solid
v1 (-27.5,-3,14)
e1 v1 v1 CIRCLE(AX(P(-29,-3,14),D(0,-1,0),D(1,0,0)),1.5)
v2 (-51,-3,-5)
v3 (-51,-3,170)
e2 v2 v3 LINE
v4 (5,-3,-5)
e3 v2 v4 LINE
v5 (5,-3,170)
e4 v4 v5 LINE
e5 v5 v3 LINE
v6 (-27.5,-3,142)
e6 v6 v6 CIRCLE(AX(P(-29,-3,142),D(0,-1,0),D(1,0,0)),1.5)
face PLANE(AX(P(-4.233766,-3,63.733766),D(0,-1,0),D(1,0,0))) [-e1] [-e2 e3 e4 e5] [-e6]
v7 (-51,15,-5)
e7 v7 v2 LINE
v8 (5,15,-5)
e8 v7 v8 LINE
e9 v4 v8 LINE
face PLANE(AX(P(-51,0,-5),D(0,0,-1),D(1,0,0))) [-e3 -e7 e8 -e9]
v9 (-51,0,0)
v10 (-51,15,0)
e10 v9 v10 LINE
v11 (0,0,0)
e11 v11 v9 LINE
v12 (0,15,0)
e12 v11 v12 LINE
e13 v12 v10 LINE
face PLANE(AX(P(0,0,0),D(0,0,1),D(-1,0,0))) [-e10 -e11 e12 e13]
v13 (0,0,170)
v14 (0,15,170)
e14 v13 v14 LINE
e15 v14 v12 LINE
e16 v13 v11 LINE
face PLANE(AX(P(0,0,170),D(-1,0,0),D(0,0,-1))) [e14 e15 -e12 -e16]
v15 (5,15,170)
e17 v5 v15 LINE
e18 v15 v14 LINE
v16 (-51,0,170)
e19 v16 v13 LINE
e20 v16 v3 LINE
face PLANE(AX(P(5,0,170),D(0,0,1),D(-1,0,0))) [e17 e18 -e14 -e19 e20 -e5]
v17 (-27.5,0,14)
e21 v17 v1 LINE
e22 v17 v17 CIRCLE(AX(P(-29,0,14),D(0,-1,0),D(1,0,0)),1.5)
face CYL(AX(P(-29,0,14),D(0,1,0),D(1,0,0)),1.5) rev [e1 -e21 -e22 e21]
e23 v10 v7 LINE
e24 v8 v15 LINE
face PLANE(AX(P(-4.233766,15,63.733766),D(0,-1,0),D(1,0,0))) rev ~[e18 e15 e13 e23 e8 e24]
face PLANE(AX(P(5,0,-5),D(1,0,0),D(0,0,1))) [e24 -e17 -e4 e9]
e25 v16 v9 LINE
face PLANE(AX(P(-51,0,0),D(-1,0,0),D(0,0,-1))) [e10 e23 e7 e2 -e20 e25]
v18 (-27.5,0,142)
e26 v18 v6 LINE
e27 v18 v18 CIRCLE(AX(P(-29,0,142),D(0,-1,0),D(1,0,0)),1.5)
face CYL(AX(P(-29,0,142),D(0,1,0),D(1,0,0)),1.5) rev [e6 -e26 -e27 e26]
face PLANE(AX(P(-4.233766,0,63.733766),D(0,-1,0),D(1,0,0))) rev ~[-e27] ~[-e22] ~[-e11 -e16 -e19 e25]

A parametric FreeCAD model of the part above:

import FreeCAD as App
import Part
import Sketcher
Q = App.Units.Quantity


def add_polygon(sketch, points):
    """Adds a closed chain of lines whose ends are joined by coincident constraints."""
    first, n = sketch.GeometryCount, len(points)
    for a, b in zip(points, points[1:] + points[:1]):
        sketch.addGeometry(Part.LineSegment(App.Vector(*a, 0), App.Vector(*b, 0)), False)
    for i in range(n):
        sketch.addConstraint(Sketcher.Constraint("Coincident", first + i, 2, first + (i + 1) % n, 1))

doc = App.newDocument("Part")
body = doc.addObject("PartDesign::Body", "Body")

sketch1 = body.newObject("Sketcher::SketchObject", "Sketch")
sketch1.AttachmentSupport = (doc.getObject("XZ_Plane"), [""])
sketch1.MapMode = "FlatFace"
add_polygon(sketch1, [(-51, 170), (-51, 0), (0, 0), (0, 170)])
sketch1.addGeometry(Part.Circle(App.Vector(-29, 14, 0), App.Vector(0, 0, 1), 1.5), False)
sketch1.addGeometry(Part.Circle(App.Vector(-29, 142, 0), App.Vector(0, 0, 1), 1.5), False)
sketch1.addConstraint(Sketcher.Constraint("Vertical", 0))
sketch1.addConstraint(Sketcher.Constraint("Horizontal", 1))
sketch1.addConstraint(Sketcher.Constraint("Vertical", 2))
sketch1.addConstraint(Sketcher.Constraint("Horizontal", 3))
sketch1.addConstraint(Sketcher.Constraint("Coincident", 1, 2, -1, 1))
sketch1.addConstraint(Sketcher.Constraint("Equal", 4, 5))
sketch1.addConstraint(Sketcher.Constraint("Vertical", 4, 3, 5, 3))
sketch1.addConstraint(Sketcher.Constraint("Diameter", 4, Q("3 mm")))
sketch1.addConstraint(Sketcher.Constraint("DistanceX", 1, 1, 1, 2, Q("51 mm")))
sketch1.addConstraint(Sketcher.Constraint("DistanceY", 0, 2, 0, 1, Q("170 mm")))
sketch1.addConstraint(Sketcher.Constraint("DistanceX", 4, 3, -1, 1, Q("29 mm")))
sketch1.addConstraint(Sketcher.Constraint("DistanceY", -1, 1, 4, 3, Q("14 mm")))
sketch1.addConstraint(Sketcher.Constraint("DistanceY", -1, 1, 5, 3, Q("142 mm")))
pad1 = body.newObject("PartDesign::Pad", "Pad")
pad1.Profile = sketch1
pad1.Length = 3

sketch2 = body.newObject("Sketcher::SketchObject", "Sketch001")
sketch2.AttachmentSupport = (doc.getObject("XZ_Plane"), [""])
sketch2.MapMode = "FlatFace"
add_polygon(sketch2, [(0, 170), (0, 0), (-51, 0), (-51, -5), (5, -5), (5, 170)])
sketch2.addConstraint(Sketcher.Constraint("Vertical", 0))
sketch2.addConstraint(Sketcher.Constraint("Horizontal", 1))
sketch2.addConstraint(Sketcher.Constraint("Vertical", 2))
sketch2.addConstraint(Sketcher.Constraint("Horizontal", 3))
sketch2.addConstraint(Sketcher.Constraint("Vertical", 4))
sketch2.addConstraint(Sketcher.Constraint("Horizontal", 5))
sketch2.addConstraint(Sketcher.Constraint("Coincident", 0, 2, -1, 1))
sketch2.addConstraint(Sketcher.Constraint("Equal", 5, 2))
sketch2.addConstraint(Sketcher.Constraint("DistanceX", 1, 2, 1, 1, Q("51 mm")))
sketch2.addConstraint(Sketcher.Constraint("DistanceX", 3, 1, 3, 2, Q("56 mm")))
sketch2.addConstraint(Sketcher.Constraint("DistanceY", 0, 2, 0, 1, Q("170 mm")))
pad2 = body.newObject("PartDesign::Pad", "Pad001")
pad2.Profile = sketch2
pad2.Length = 3

sketch3 = body.newObject("Sketcher::SketchObject", "Sketch002")
sketch3.AttachmentSupport = (doc.getObject("XZ_Plane"), [""])
sketch3.MapMode = "FlatFace"
add_polygon(sketch3, [(0, 170), (0, 0), (-51, 0), (-51, -5), (5, -5), (5, 170)])
sketch3.addConstraint(Sketcher.Constraint("Vertical", 0))
sketch3.addConstraint(Sketcher.Constraint("Horizontal", 1))
sketch3.addConstraint(Sketcher.Constraint("Vertical", 2))
sketch3.addConstraint(Sketcher.Constraint("Horizontal", 3))
sketch3.addConstraint(Sketcher.Constraint("Vertical", 4))
sketch3.addConstraint(Sketcher.Constraint("Horizontal", 5))
sketch3.addConstraint(Sketcher.Constraint("Coincident", 0, 2, -1, 1))
sketch3.addConstraint(Sketcher.Constraint("Equal", 5, 2))
sketch3.addConstraint(Sketcher.Constraint("DistanceX", 1, 2, 1, 1, Q("51 mm")))
sketch3.addConstraint(Sketcher.Constraint("DistanceX", 3, 1, 3, 2, Q("56 mm")))
sketch3.addConstraint(Sketcher.Constraint("DistanceY", 0, 2, 0, 1, Q("170 mm")))
pad3 = body.newObject("PartDesign::Pad", "Pad002")
pad3.Profile = sketch3
pad3.Length = 15
pad3.Reversed = True

doc.recompute()
